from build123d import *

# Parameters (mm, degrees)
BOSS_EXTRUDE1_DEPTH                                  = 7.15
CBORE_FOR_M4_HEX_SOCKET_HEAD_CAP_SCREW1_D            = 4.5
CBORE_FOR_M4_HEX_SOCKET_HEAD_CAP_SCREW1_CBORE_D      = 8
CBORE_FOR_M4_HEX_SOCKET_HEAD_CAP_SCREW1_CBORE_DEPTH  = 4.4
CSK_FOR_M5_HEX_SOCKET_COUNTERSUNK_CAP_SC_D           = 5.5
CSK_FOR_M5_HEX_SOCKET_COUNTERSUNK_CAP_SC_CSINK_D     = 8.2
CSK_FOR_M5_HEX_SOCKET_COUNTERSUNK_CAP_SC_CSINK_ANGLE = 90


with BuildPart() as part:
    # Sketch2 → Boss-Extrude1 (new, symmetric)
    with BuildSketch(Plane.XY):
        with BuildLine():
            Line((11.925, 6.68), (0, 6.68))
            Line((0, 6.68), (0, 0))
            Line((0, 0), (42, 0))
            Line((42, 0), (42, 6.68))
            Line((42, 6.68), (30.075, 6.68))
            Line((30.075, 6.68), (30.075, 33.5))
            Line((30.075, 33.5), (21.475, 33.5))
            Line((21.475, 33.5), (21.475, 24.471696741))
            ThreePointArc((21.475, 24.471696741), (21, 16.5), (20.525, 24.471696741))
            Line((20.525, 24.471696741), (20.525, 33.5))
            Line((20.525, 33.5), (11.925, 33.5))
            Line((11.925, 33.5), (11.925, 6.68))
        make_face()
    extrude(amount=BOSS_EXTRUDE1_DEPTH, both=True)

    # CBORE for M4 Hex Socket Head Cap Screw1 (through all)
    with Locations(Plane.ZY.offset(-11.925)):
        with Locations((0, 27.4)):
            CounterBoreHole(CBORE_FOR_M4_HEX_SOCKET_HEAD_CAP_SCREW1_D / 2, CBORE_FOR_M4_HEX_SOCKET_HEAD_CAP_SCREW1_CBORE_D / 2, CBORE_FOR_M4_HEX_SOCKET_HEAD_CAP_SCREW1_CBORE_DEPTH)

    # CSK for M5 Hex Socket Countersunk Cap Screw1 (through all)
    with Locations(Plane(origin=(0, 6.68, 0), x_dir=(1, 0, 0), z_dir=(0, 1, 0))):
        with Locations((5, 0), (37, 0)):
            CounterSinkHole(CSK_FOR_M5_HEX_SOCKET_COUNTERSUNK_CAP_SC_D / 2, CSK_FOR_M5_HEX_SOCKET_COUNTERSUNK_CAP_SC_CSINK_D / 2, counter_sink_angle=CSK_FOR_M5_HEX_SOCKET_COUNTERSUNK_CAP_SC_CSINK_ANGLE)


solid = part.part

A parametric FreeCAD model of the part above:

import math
import FreeCAD as App
import Part
import Sketcher
from FreeCAD import Vector

doc = App.newDocument("Part")
body = doc.addObject("PartDesign::Body", "Body")

# Sketch on XY plane
sketch1 = body.newObject("Sketcher::SketchObject", "Sketch")
sketch1.AttachmentSupport = (doc.getObject("XY_Plane"), [""])
sketch1.MapMode = "FlatFace"
sketch1.addGeometry([
    Part.LineSegment(Vector(11.9, 6.7, 0), Vector(0, 6.7, 0)),  # 0
    Part.LineSegment(Vector(0, 6.7, 0), Vector(0, 0, 0)),  # 1
    Part.LineSegment(Vector(0, 0, 0), Vector(42, 0, 0)),  # 2
    Part.LineSegment(Vector(42, 0, 0), Vector(42, 6.7, 0)),  # 3
    Part.LineSegment(Vector(42, 6.7, 0), Vector(30.1, 6.7, 0)),  # 4
    Part.LineSegment(Vector(30.1, 6.7, 0), Vector(30.1, 33.5, 0)),  # 5
    Part.LineSegment(Vector(30.1, 33.5, 0), Vector(21.5, 33.5, 0)),  # 6
    Part.LineSegment(Vector(21.5, 33.5, 0), Vector(21.5, 24.5, 0)),  # 7
    Part.ArcOfCircle(Part.Circle(Vector(21, 20.5, 0), Vector(0, 0, 1), 4), math.radians(97), math.radians(443)),  # 8
    Part.LineSegment(Vector(20.5, 24.5, 0), Vector(20.5, 33.5, 0)),  # 9
    Part.LineSegment(Vector(20.5, 33.5, 0), Vector(11.9, 33.5, 0)),  # 10
    Part.LineSegment(Vector(11.9, 33.5, 0), Vector(11.9, 6.7, 0)),  # 11
], False)
sketch1.addConstraint([
    Sketcher.Constraint("Coincident", 0, 2, 1, 1),
    Sketcher.Constraint("Coincident", 1, 2, 2, 1),
    Sketcher.Constraint("Coincident", 2, 2, 3, 1),
    Sketcher.Constraint("Coincident", 3, 2, 4, 1),
    Sketcher.Constraint("Coincident", 4, 2, 5, 1),
    Sketcher.Constraint("Coincident", 5, 2, 6, 1),
    Sketcher.Constraint("Coincident", 6, 2, 7, 1),
    Sketcher.Constraint("Coincident", 7, 2, 8, 2),
    Sketcher.Constraint("Coincident", 8, 1, 9, 1),
    Sketcher.Constraint("Coincident", 9, 2, 10, 1),
    Sketcher.Constraint("Coincident", 10, 2, 11, 1),
    Sketcher.Constraint("Coincident", 11, 2, 0, 1),
    Sketcher.Constraint("Horizontal", 0),
    Sketcher.Constraint("Vertical", 1),
    Sketcher.Constraint("Horizontal", 2),
    Sketcher.Constraint("Vertical", 3),
    Sketcher.Constraint("Horizontal", 4),
    Sketcher.Constraint("Vertical", 5),
    Sketcher.Constraint("Horizontal", 6),
    Sketcher.Constraint("Vertical", 7),
    Sketcher.Constraint("Vertical", 9),
    Sketcher.Constraint("Horizontal", 10),
    Sketcher.Constraint("Vertical", 11),
    Sketcher.Constraint("Coincident", 1, 2, -1, 1),
    Sketcher.Constraint("Horizontal", 0, 2, 3, 2),
    Sketcher.Constraint("Horizontal", 7, 2, 8, 1),
    Sketcher.Constraint("Horizontal", 6, 2, 9, 2),
    Sketcher.Constraint("Equal", 0, 4),
    Sketcher.Constraint("Equal", 6, 10),
    Sketcher.Constraint("Radius", 8, 4.0),
    Sketcher.Constraint("DistanceX", 2, 1, 2, 2, 42.0),
    Sketcher.Constraint("DistanceX", 6, 2, 6, 1, 8.6),
    Sketcher.Constraint("DistanceY", 8, 3, 5, 2, 13.0),
    Sketcher.Constraint("DistanceY", 1, 2, 1, 1, 6.68),
    Sketcher.Constraint("DistanceY", 5, 1, 5, 2, 26.82),
    Sketcher.Constraint("DistanceX", 0, 2, 0, 1, 11.925),
])
pad1 = body.newObject("PartDesign::Pad", "Pad")
pad1.Profile = sketch1
pad1.Length = 14.3
pad1.Midplane = True

# Sketch on YZ plane
sketch2 = body.newObject("Sketcher::SketchObject", "Sketch001")
sketch2.AttachmentSupport = (doc.getObject("YZ_Plane"), [""])
sketch2.MapMode = "FlatFace"
sketch2.AttachmentOffset = App.Placement(Vector(0, 0, 11.925), App.Rotation())
sketch2.addGeometry(Part.Circle(Vector(27.4, 0, 0), Vector(0, 0, 1), 2.2), False)
sketch2.addConstraint([
    Sketcher.Constraint("PointOnObject", 0, 3, -1),
    Sketcher.Constraint("Diameter", 0, 4.5),
    Sketcher.Constraint("DistanceX", -1, 1, 0, 3, 27.4),
])
doc.recompute()
hole = body.newObject("PartDesign::Hole", "Hole")
hole.Profile = sketch2
hole.ThreadType = "None"
hole.Diameter = 4.5
hole.DepthType = "ThroughAll"
hole.HoleCutType = "Counterbore"
hole.HoleCutDiameter = 8
hole.HoleCutDepth = 4.4
hole.Reversed = True

# Sketch on XZ plane
sketch3 = body.newObject("Sketcher::SketchObject", "Sketch002")
sketch3.AttachmentSupport = (doc.getObject("XZ_Plane"), [""])
sketch3.MapMode = "FlatFace"
sketch3.AttachmentOffset = App.Placement(Vector(0, 0, -6.68), App.Rotation())
sketch3.addGeometry([
    Part.Circle(Vector(5, 0, 0), Vector(0, 0, 1), 2.8),
    Part.Circle(Vector(37, 0, 0), Vector(0, 0, 1), 2.8),
], False)
sketch3.addConstraint([
    Sketcher.Constraint("Equal", 0, 1),
    Sketcher.Constraint("PointOnObject", 0, 3, -1),
    Sketcher.Constraint("PointOnObject", 1, 3, -1),
    Sketcher.Constraint("Diameter", 0, 5.5),
    Sketcher.Constraint("DistanceX", -1, 1, 0, 3, 5.0),
    Sketcher.Constraint("DistanceX", -1, 1, 1, 3, 37.0),
])
doc.recompute()
hole2 = body.newObject("PartDesign::Hole", "Hole001")
hole2.Profile = sketch3
hole2.ThreadType = "None"
hole2.Diameter = 5.5
hole2.DepthType = "ThroughAll"
hole2.HoleCutType = "Countersink"
hole2.HoleCutDiameter = 8.2
hole2.HoleCutCountersinkAngle = 90
hole2.Reversed = True

doc.recompute()
